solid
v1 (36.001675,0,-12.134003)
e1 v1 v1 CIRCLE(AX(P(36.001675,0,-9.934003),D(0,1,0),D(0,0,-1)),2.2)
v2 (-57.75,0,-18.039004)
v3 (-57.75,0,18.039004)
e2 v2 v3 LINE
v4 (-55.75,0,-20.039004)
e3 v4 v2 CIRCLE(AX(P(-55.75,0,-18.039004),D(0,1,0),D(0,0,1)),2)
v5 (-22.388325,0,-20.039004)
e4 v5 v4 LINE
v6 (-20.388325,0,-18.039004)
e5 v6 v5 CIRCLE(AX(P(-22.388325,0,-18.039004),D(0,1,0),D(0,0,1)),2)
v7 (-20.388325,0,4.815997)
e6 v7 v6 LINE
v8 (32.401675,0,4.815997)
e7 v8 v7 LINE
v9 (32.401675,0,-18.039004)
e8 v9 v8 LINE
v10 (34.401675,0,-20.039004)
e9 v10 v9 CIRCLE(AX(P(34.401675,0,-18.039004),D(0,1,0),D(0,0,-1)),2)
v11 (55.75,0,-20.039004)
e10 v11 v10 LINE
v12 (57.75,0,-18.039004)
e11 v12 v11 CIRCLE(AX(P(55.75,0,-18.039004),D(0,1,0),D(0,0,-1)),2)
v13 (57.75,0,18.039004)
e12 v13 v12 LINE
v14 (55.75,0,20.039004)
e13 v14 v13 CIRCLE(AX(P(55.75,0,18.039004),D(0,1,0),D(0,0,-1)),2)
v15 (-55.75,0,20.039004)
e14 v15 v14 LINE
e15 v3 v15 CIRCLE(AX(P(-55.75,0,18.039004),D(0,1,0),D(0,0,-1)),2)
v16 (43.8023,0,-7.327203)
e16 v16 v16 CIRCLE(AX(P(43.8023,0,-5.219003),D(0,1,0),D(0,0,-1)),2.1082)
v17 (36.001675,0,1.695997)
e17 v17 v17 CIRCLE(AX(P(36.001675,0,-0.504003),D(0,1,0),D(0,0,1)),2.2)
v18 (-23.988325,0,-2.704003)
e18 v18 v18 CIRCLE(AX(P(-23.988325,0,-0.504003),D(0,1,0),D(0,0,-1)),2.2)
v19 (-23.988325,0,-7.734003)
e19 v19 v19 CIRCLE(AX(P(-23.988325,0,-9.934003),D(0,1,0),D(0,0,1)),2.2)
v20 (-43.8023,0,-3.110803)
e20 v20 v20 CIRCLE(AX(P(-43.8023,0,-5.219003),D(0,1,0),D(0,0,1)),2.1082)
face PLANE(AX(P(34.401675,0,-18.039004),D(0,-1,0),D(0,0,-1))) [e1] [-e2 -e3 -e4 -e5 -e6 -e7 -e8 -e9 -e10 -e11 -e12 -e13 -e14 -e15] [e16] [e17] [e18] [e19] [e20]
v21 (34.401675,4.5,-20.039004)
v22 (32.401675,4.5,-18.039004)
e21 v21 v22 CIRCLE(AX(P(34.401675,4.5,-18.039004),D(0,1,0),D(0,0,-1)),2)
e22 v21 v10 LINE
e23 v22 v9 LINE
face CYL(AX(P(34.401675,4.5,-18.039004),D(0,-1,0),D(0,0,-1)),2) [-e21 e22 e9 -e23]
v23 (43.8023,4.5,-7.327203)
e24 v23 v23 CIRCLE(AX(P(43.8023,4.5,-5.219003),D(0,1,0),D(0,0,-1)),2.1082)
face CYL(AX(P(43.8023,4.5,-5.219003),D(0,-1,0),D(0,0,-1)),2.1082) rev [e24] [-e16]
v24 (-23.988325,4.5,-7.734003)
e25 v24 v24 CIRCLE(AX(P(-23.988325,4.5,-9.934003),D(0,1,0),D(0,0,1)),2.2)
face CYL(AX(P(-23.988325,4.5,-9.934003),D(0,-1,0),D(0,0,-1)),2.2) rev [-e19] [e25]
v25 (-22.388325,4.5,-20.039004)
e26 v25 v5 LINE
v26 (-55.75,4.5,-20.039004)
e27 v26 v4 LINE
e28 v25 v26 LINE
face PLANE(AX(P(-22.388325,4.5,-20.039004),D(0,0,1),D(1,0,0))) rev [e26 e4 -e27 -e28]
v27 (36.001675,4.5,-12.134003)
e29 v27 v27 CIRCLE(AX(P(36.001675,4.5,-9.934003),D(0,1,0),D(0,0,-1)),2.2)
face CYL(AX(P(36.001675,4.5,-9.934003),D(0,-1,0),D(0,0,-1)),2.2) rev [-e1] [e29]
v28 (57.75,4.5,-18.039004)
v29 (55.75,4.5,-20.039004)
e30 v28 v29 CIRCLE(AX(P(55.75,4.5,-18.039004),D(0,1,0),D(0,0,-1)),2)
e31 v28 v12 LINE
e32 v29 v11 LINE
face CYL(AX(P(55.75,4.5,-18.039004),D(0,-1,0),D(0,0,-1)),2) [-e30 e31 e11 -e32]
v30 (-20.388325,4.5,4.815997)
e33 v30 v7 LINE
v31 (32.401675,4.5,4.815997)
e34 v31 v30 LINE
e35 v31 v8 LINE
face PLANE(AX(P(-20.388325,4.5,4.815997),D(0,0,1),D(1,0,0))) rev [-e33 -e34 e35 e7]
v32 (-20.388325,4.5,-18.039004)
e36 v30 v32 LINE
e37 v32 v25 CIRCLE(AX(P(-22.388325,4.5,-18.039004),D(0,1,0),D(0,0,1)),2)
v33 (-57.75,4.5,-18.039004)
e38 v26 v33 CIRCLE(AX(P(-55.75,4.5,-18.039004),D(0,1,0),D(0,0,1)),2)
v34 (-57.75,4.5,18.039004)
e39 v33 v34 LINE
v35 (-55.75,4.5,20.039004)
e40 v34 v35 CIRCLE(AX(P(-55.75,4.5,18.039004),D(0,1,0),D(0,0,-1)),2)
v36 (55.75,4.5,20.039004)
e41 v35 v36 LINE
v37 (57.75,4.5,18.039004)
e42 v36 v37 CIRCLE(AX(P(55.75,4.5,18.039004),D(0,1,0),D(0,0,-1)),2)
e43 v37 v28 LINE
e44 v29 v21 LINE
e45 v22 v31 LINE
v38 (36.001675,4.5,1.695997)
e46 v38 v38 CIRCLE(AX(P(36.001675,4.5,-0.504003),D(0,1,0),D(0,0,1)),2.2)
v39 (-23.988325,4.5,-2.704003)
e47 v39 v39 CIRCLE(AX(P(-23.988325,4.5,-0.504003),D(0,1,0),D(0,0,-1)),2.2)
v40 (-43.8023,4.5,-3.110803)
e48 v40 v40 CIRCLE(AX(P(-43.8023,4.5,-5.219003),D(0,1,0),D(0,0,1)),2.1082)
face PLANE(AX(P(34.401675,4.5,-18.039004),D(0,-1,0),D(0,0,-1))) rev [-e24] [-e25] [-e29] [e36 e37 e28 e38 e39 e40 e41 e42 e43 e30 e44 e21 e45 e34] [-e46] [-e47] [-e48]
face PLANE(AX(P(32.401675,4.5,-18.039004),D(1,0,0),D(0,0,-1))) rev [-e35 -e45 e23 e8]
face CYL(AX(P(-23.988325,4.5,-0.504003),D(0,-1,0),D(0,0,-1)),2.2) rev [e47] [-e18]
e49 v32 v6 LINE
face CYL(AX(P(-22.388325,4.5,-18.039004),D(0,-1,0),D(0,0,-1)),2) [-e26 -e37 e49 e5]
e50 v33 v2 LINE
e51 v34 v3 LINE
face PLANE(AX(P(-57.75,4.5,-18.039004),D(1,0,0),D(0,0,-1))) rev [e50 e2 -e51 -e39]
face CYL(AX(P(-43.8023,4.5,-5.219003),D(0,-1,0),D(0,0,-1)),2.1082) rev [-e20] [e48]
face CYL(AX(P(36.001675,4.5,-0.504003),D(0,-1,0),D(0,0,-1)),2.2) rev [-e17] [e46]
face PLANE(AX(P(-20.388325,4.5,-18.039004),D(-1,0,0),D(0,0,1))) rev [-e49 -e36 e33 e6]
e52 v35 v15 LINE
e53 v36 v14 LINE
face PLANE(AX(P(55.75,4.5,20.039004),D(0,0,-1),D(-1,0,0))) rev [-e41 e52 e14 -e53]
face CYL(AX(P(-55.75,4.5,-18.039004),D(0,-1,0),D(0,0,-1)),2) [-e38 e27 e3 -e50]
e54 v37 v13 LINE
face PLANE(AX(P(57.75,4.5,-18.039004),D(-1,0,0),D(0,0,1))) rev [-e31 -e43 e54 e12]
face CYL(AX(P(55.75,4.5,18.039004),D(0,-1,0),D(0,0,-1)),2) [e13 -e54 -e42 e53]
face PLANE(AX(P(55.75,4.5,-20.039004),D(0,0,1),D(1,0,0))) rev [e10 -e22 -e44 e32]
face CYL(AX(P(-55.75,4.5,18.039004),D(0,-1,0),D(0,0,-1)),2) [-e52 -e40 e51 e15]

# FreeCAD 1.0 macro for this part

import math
import FreeCAD as App
import Part
import Sketcher

V = App.Vector

doc = App.newDocument("Part")
params = doc.addObject("Spreadsheet::Sheet", "Params")
for row, (alias, value) in enumerate([
    ("sketch1_radius", "2 mm"),
    ("sketch1_diameter", "4.4 mm"),
    ("sketch1_width", "111.5 mm"),
    ("sketch1_width2", "52.79 mm"),
    ("pad1_length", "4.5 mm"),
], start=1):
    params.set(f"A{row}", alias)
    params.set(f"B{row}", "=" + value)
    params.setAlias(f"B{row}", alias)

body = doc.addObject("PartDesign::Body", "Body")

# Sketch on XZ plane
sketch1 = body.newObject("Sketcher::SketchObject", "Sketch")
sketch1.AttachmentSupport = (doc.getObject("XZ_Plane"), [""])
sketch1.MapMode = "FlatFace"
sketch1.addGeometry([
    Part.LineSegment(V(55.75, -20.039004, 0), V(34.401675, -20.039004, 0)),  # 0
    Part.ArcOfCircle(Part.Circle(V(34.401675, -18.039004, 0), V(0, 0, 1), 2), math.radians(180), math.radians(270)),  # 1
    Part.LineSegment(V(32.401675, -18.039004, 0), V(32.401675, 4.815997, 0)),  # 2
    Part.LineSegment(V(32.401675, 4.815997, 0), V(-20.388325, 4.815997, 0)),  # 3
    Part.LineSegment(V(-20.388325, 4.815997, 0), V(-20.388325, -18.039004, 0)),  # 4
    Part.ArcOfCircle(Part.Circle(V(-22.388325, -18.039004, 0), V(0, 0, 1), 2), math.radians(-90), math.radians(0)),  # 5
    Part.LineSegment(V(-22.388325, -20.039004, 0), V(-55.75, -20.039004, 0)),  # 6
    Part.ArcOfCircle(Part.Circle(V(-55.75, -18.039004, 0), V(0, 0, 1), 2), math.radians(180), math.radians(270)),  # 7
    Part.LineSegment(V(-57.75, -18.039004, 0), V(-57.75, 18.039004, 0)),  # 8
    Part.ArcOfCircle(Part.Circle(V(-55.75, 18.039004, 0), V(0, 0, 1), 2), math.radians(90), math.radians(180)),  # 9
    Part.LineSegment(V(-55.75, 20.039004, 0), V(55.75, 20.039004, 0)),  # 10
    Part.ArcOfCircle(Part.Circle(V(55.75, 18.039004, 0), V(0, 0, 1), 2), math.radians(0), math.radians(90)),  # 11
    Part.LineSegment(V(57.75, 18.039004, 0), V(57.75, -18.039004, 0)),  # 12
    Part.ArcOfCircle(Part.Circle(V(55.75, -18.039004, 0), V(0, 0, 1), 2), math.radians(-90), math.radians(0)),  # 13
    Part.Circle(V(-23.988325, -0.504003, 0), V(0, 0, 1), 2.2),  # 14
    Part.Circle(V(-43.8023, -5.219003, 0), V(0, 0, 1), 2.1082),  # 15
    Part.Circle(V(36.001675, -0.504003, 0), V(0, 0, 1), 2.2),  # 16
    Part.Circle(V(43.8023, -5.219003, 0), V(0, 0, 1), 2.1082),  # 17
    Part.Circle(V(-23.988325, -9.934003, 0), V(0, 0, 1), 2.2),  # 18
    Part.Circle(V(36.001675, -9.934003, 0), V(0, 0, 1), 2.2),  # 19
], False)
sketch1.addConstraint([
    Sketcher.Constraint("Tangent", 0, 2, 1, 2),
    Sketcher.Constraint("Tangent", 1, 1, 2, 1),
    Sketcher.Constraint("Coincident", 2, 2, 3, 1),
    Sketcher.Constraint("Coincident", 3, 2, 4, 1),
    Sketcher.Constraint("Tangent", 4, 2, 5, 2),
    Sketcher.Constraint("Tangent", 5, 1, 6, 1),
    Sketcher.Constraint("Tangent", 6, 2, 7, 2),
    Sketcher.Constraint("Tangent", 7, 1, 8, 1),
    Sketcher.Constraint("Tangent", 8, 2, 9, 2),
    Sketcher.Constraint("Tangent", 9, 1, 10, 1),
    Sketcher.Constraint("Tangent", 10, 2, 11, 2),
    Sketcher.Constraint("Tangent", 11, 1, 12, 1),
    Sketcher.Constraint("Tangent", 12, 2, 13, 2),
    Sketcher.Constraint("Tangent", 13, 1, 0, 1),
    Sketcher.Constraint("Horizontal", 0),
    Sketcher.Constraint("Vertical", 2),
    Sketcher.Constraint("Horizontal", 3),
    Sketcher.Constraint("Vertical", 4),
    Sketcher.Constraint("Horizontal", 6),
    Sketcher.Constraint("Vertical", 8),
    Sketcher.Constraint("Horizontal", 10),
    Sketcher.Constraint("Vertical", 12),
    Sketcher.Constraint("Equal", 1, 5),
    Sketcher.Constraint("Equal", 5, 7),
    Sketcher.Constraint("Equal", 7, 9),
    Sketcher.Constraint("Equal", 9, 11),
    Sketcher.Constraint("Equal", 11, 13),
    Sketcher.Constraint("Equal", 14, 16),
    Sketcher.Constraint("Equal", 15, 17),
    Sketcher.Constraint("Equal", 16, 18),
    Sketcher.Constraint("Equal", 18, 19),
    Sketcher.Constraint("Symmetric", 7, 3, 11, 3, -1, 1),
    Sketcher.Constraint("Symmetric", 15, 3, 17, 3, -2),
    Sketcher.Constraint("Horizontal", 1, 3, 5, 3),
    Sketcher.Constraint("Horizontal", 14, 3, 16, 3),
    Sketcher.Constraint("Horizontal", 18, 3, 19, 3),
    Sketcher.Constraint("Vertical", 14, 3, 18, 3),
    Sketcher.Constraint("Vertical", 16, 3, 19, 3),
    Sketcher.Constraint("Radius", 1, 2.0),
    Sketcher.Constraint("Diameter", 14, 4.4),
    Sketcher.Constraint("DistanceX", 10, 1, 10, 2, 111.5),
    Sketcher.Constraint("Diameter", 15, 4.2164),
    Sketcher.Constraint("DistanceX", 3, 2, 3, 1, 52.79),
    Sketcher.Constraint("DistanceX", 14, 3, 5, 3, 1.6),
    Sketcher.Constraint("DistanceX", 1, 3, 16, 3, 1.6),
    Sketcher.Constraint("DistanceY", 2, 1, 2, 2, 22.855),
    Sketcher.Constraint("DistanceY", 7, 3, 15, 3, 12.82),
    Sketcher.Constraint("DistanceY", 18, 3, 14, 3, 9.43),
    Sketcher.Constraint("DistanceY", 16, 3, 2, 2, 5.32),
    Sketcher.Constraint("DistanceX", 15, 3, -1, 1, 43.8023),
    Sketcher.Constraint("DistanceX", 0, 2, 0, 1, 21.348325),
    Sketcher.Constraint("DistanceY", 8, 1, 8, 2, 36.078007),
])
sketch1.setExpression("Constraints[38]", "Params.sketch1_radius")
sketch1.setExpression("Constraints[39]", "Params.sketch1_diameter")
sketch1.setExpression("Constraints[40]", "Params.sketch1_width")
sketch1.setExpression("Constraints[42]", "Params.sketch1_width2")
pad1 = body.newObject("PartDesign::Pad", "Pad")
pad1.Profile = sketch1
pad1.setExpression("Length", "Params.pad1_length")
pad1.Reversed = True

doc.recompute()
